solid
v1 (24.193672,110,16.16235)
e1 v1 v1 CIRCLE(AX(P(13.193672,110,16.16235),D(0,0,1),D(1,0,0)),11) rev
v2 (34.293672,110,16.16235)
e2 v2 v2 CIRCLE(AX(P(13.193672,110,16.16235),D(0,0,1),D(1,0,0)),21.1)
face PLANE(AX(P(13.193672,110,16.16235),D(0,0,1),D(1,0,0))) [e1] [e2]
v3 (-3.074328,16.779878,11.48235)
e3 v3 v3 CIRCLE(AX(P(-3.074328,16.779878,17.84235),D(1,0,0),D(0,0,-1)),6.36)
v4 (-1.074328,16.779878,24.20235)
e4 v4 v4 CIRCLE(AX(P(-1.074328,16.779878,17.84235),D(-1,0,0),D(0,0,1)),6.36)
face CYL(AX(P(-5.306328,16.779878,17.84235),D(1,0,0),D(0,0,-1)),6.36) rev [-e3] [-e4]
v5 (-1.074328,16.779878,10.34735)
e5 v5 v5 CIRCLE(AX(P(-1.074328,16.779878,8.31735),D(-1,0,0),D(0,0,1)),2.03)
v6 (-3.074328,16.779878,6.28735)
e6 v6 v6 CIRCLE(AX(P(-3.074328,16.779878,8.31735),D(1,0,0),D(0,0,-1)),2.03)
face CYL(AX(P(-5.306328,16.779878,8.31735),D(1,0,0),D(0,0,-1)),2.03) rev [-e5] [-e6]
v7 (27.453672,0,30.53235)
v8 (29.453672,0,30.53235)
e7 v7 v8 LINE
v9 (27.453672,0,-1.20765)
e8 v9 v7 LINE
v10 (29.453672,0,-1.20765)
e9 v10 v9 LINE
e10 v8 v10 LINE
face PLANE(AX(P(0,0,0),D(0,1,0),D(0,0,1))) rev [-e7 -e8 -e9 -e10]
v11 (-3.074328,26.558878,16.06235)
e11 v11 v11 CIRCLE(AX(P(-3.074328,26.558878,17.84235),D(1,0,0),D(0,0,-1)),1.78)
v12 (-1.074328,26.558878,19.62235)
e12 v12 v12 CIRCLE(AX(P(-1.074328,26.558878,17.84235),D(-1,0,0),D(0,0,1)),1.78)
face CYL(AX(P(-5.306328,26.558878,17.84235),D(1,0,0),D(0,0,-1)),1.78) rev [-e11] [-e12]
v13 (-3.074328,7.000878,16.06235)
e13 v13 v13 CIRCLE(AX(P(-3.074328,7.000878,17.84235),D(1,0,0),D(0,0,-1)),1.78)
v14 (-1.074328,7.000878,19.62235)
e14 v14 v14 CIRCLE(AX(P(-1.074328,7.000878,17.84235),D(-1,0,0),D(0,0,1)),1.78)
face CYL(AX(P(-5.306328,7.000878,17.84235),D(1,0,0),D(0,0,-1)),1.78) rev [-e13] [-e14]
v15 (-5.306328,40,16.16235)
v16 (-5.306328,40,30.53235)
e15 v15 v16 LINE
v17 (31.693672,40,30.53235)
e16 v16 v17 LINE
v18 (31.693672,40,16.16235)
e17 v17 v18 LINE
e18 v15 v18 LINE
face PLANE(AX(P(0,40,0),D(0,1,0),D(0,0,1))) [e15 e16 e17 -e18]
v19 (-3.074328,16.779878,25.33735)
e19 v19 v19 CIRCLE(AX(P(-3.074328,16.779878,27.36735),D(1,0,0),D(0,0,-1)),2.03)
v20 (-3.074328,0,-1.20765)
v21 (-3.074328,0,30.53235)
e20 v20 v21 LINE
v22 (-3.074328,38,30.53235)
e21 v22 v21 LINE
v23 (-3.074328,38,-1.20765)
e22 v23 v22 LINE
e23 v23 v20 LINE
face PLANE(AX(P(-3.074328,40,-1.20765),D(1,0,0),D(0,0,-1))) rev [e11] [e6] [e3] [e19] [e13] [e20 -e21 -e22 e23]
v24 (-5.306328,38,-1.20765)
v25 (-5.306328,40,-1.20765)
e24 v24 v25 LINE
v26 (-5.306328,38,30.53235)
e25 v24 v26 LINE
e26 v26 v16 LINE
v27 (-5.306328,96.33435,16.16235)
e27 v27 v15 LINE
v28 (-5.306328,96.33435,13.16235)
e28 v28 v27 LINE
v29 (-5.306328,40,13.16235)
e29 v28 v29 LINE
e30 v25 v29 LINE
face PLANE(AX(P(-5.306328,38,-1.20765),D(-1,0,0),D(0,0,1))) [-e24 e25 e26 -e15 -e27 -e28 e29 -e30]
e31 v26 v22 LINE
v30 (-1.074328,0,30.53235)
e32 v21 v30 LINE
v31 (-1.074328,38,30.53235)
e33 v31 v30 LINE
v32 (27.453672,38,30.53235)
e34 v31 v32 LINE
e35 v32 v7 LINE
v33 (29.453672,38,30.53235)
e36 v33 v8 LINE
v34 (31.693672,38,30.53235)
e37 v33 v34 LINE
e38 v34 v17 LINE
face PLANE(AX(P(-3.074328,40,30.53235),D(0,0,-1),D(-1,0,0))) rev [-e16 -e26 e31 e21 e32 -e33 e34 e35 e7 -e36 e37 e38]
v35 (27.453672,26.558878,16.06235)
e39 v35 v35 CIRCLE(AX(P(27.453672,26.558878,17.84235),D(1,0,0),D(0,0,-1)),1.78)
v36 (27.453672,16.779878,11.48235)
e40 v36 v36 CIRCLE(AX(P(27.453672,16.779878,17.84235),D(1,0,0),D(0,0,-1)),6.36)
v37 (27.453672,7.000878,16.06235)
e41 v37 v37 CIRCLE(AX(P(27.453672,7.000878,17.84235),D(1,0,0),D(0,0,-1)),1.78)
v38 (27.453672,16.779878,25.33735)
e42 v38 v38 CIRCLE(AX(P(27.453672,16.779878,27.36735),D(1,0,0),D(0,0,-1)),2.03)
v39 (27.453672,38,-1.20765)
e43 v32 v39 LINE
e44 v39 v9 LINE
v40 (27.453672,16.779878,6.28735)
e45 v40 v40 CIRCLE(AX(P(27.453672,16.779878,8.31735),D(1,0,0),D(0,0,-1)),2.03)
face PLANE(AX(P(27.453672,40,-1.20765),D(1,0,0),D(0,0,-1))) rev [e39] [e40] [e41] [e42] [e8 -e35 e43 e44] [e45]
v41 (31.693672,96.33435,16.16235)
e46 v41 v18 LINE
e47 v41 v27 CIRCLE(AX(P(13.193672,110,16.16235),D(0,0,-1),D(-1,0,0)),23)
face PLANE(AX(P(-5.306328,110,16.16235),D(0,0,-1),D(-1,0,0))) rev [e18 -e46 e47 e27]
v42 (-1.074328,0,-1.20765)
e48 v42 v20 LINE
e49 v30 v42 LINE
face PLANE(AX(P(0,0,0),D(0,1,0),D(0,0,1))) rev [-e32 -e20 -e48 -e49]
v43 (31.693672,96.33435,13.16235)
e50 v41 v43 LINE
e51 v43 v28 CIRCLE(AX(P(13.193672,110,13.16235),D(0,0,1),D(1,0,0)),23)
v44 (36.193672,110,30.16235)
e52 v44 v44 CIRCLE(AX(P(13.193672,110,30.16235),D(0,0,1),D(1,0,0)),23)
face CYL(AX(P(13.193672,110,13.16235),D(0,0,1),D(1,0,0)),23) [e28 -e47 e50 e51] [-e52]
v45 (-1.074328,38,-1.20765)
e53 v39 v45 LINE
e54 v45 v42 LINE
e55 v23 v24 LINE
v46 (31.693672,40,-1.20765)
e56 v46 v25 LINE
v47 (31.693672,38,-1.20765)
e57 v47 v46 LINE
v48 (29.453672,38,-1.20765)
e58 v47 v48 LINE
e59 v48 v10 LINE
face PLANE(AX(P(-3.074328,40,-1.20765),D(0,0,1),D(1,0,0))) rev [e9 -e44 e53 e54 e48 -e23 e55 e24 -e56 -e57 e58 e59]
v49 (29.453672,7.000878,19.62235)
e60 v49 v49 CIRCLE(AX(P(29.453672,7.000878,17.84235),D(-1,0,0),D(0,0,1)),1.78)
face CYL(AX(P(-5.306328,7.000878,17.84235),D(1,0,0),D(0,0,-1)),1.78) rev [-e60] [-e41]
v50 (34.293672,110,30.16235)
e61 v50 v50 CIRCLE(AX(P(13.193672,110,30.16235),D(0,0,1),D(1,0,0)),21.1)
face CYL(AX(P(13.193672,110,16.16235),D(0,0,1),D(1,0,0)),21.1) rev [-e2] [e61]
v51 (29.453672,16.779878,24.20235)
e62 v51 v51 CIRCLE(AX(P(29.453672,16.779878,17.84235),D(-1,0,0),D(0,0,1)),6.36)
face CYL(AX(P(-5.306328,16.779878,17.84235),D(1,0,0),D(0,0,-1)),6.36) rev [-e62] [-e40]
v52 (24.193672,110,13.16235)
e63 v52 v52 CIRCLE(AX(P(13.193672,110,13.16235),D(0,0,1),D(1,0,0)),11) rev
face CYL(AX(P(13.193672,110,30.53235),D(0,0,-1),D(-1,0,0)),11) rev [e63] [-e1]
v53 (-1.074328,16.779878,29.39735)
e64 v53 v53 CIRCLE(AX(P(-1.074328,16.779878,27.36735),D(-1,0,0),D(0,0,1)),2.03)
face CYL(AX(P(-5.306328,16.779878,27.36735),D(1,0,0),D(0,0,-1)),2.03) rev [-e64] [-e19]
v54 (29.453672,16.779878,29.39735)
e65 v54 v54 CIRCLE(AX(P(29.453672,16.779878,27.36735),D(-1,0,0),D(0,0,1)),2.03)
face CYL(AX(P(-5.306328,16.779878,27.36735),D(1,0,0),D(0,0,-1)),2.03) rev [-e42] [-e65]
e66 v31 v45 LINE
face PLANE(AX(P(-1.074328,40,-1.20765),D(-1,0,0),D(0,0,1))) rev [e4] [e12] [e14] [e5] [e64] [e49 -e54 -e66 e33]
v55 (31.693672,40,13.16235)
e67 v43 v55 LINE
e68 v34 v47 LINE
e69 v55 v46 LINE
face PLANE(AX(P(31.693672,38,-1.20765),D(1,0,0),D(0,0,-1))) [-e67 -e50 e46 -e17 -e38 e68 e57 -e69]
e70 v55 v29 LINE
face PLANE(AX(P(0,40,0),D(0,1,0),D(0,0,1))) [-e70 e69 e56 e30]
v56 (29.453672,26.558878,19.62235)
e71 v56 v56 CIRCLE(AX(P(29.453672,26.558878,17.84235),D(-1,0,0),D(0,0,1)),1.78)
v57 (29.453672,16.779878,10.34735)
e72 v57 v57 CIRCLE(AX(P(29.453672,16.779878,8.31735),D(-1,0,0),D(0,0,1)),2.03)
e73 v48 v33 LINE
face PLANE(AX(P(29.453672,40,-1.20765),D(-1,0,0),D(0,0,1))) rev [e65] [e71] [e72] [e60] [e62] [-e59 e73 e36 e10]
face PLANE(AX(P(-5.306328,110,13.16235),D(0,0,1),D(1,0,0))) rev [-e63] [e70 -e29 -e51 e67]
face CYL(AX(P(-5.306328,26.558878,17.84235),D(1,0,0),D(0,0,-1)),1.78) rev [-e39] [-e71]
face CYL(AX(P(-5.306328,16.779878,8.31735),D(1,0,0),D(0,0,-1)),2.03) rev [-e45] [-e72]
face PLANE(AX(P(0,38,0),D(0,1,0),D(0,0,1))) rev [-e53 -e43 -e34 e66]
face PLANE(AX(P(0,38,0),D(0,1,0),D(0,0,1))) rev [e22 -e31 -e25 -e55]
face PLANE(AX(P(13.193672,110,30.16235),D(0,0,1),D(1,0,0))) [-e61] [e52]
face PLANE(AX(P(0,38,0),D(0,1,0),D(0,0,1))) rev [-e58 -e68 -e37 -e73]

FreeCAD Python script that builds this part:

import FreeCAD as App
import Part
import Sketcher

V = App.Vector


def add_polygon(sketch, points):
    """Adds a closed chain of lines whose ends are joined by coincident constraints."""
    first, n = sketch.GeometryCount, len(points)
    for a, b in zip(points, points[1:] + points[:1]):
        sketch.addGeometry(Part.LineSegment(App.Vector(*a, 0), App.Vector(*b, 0)), False)
    for i in range(n):
        sketch.addConstraint(Sketcher.Constraint("Coincident", first + i, 2, first + (i + 1) % n, 1))

doc = App.newDocument("Part")
body = doc.addObject("PartDesign::Body", "Body")

sketch1 = body.newObject("Sketcher::SketchObject", "Sketch")
sketch1.AttachmentSupport = (doc.getObject("XZ_Plane"), [""])
sketch1.MapMode = "FlatFace"
add_polygon(sketch1, [(-3.1, -1.2), (-3.1, 30.5), (-1.1, 30.5), (-1.1, -1.2)])
sketch1.addConstraint([
    Sketcher.Constraint("Vertical", 0),
    Sketcher.Constraint("Horizontal", 1),
    Sketcher.Constraint("Vertical", 2),
    Sketcher.Constraint("Horizontal", 3),
    Sketcher.Constraint("DistanceX", 1, 1, 1, 2, 2.0),
    Sketcher.Constraint("DistanceY", 0, 1, 0, 2, 31.74),
    Sketcher.Constraint("DistanceY", -1, 1, 0, 2, 30.53235),
    Sketcher.Constraint("DistanceX", 0, 2, -1, 1, 3.074328),
])
pad1 = body.newObject("PartDesign::Pad", "Pad")
pad1.Profile = sketch1
pad1.Length = 40
pad1.Reversed = True
body2 = doc.addObject("PartDesign::Body", "Body001")

sketch2 = body2.newObject("Sketcher::SketchObject", "Sketch001")
sketch2.AttachmentSupport = (doc.getObject("XZ_Plane001"), [""])
sketch2.MapMode = "FlatFace"
add_polygon(sketch2, [(27.5, -1.2), (27.5, 30.5), (29.5, 30.5), (29.5, -1.2)])
sketch2.addConstraint([
    Sketcher.Constraint("Vertical", 0),
    Sketcher.Constraint("Horizontal", 1),
    Sketcher.Constraint("Vertical", 2),
    Sketcher.Constraint("Horizontal", 3),
    Sketcher.Constraint("DistanceX", 1, 1, 1, 2, 2.0),
    Sketcher.Constraint("DistanceY", 0, 1, 0, 2, 31.74),
    Sketcher.Constraint("DistanceY", -1, 1, 0, 2, 30.53235),
    Sketcher.Constraint("DistanceX", -1, 1, 0, 2, 27.453672),
])
pad2 = body2.newObject("PartDesign::Pad", "Pad001")
pad2.Profile = sketch2
pad2.Length = 40
pad2.Reversed = True
body.AllowCompound = True
doc.recompute()

boolean = body.newObject("PartDesign::Boolean", "Boolean")
boolean.Type = "Fuse"
boolean.addObjects([body2])

sketch3 = body.newObject("Sketcher::SketchObject", "Sketch002")
sketch3.AttachmentSupport = (doc.getObject("XZ_Plane"), [""])
sketch3.MapMode = "FlatFace"
sketch3.AttachmentOffset = App.Placement(V(0, 0, -40), App.Rotation())
add_polygon(sketch3, [(-5, -1), (-5, 31), (32, 31), (32, -1)])
sketch3.addConstraint([
    Sketcher.Constraint("Vertical", 0),
    Sketcher.Constraint("Horizontal", 1),
    Sketcher.Constraint("Vertical", 2),
    Sketcher.Constraint("Horizontal", 3),
    Sketcher.Constraint("DistanceX", 1, 1, 1, 2, 37.0),
    Sketcher.Constraint("DistanceY", 0, 1, 0, 2, 31.74),
    Sketcher.Constraint("DistanceY", -1, 1, 0, 2, 30.53235),
    Sketcher.Constraint("DistanceX", 0, 2, -1, 1, 5.306328),
])
pad3 = body.newObject("PartDesign::Pad", "Pad002")
pad3.Profile = sketch3
pad3.Length = 2

sketch4 = body.newObject("Sketcher::SketchObject", "Sketch003")
sketch4.AttachmentSupport = (doc.getObject("XZ_Plane"), [""])
sketch4.MapMode = "FlatFace"
sketch4.AttachmentOffset = App.Placement(V(0, 0, -40), App.Rotation())
add_polygon(sketch4, [(-5.3, 13.2), (-5.3, 16.2), (31.7, 16.2), (31.7, 13.2)])
sketch4.addConstraint([
    Sketcher.Constraint("Vertical", 0),
    Sketcher.Constraint("Horizontal", 1),
    Sketcher.Constraint("Vertical", 2),
    Sketcher.Constraint("Horizontal", 3),
    Sketcher.Constraint("DistanceX", 1, 1, 1, 2, 37.0),
    Sketcher.Constraint("DistanceY", 0, 1, 0, 2, 3.0),
    Sketcher.Constraint("DistanceY", -1, 1, 0, 2, 16.16235),
    Sketcher.Constraint("DistanceX", 0, 2, -1, 1, 5.306328),
])
pad4 = body.newObject("PartDesign::Pad", "Pad003")
pad4.Profile = sketch4
pad4.Length = 70
pad4.Reversed = True

sketch5 = body.newObject("Sketcher::SketchObject", "Sketch004")
sketch5.AttachmentSupport = (doc.getObject("YZ_Plane"), [""])
sketch5.MapMode = "FlatFace"
sketch5.AttachmentOffset = App.Placement(V(0, 0, 29.453672), App.Rotation())
sketch5.addGeometry([
    Part.Circle(V(16.8, 17.8, 0), V(0, 0, 1), 6.4),
    Part.Circle(V(26.6, 17.8, 0), V(0, 0, 1), 1.8),
    Part.Circle(V(7, 17.8, 0), V(0, 0, 1), 1.8),
    Part.Circle(V(16.8, 27.4, 0), V(0, 0, 1), 2),
    Part.Circle(V(16.8, 8.3, 0), V(0, 0, 1), 2),
], False)
sketch5.addConstraint([
    Sketcher.Constraint("Equal", 1, 2),
    Sketcher.Constraint("Equal", 3, 4),
    Sketcher.Constraint("Horizontal", 0, 3, 1, 3),
    Sketcher.Constraint("Horizontal", 1, 3, 2, 3),
    Sketcher.Constraint("Vertical", 0, 3, 3, 3),
    Sketcher.Constraint("Vertical", 3, 3, 4, 3),
    Sketcher.Constraint("Diameter", 0, 12.72),
    Sketcher.Constraint("Diameter", 1, 3.56),
    Sketcher.Constraint("Diameter", 3, 4.06),
    Sketcher.Constraint("DistanceY", 4, 3, 3, 3, 19.05),
    Sketcher.Constraint("DistanceX", 0, 3, 1, 3, 9.779),
    Sketcher.Constraint("DistanceX", 2, 3, 0, 3, 9.779),
    Sketcher.Constraint("DistanceY", 0, 3, 3, 3, 9.525),
    Sketcher.Constraint("DistanceX", -1, 1, 0, 3, 16.779878),
    Sketcher.Constraint("DistanceY", -1, 1, 0, 3, 17.84235),
])
pocket1 = body.newObject("PartDesign::Pocket", "Pocket")
pocket1.Profile = sketch5
pocket1.Type = "ThroughAll"
pocket1.Midplane = True

sketch6 = body.newObject("Sketcher::SketchObject", "Sketch005")
sketch6.AttachmentSupport = (doc.getObject("XY_Plane"), [""])
sketch6.MapMode = "FlatFace"
sketch6.AttachmentOffset = App.Placement(V(0, 0, 16.16235), App.Rotation())
sketch6.addGeometry(Part.Circle(V(13, 110, 0), V(0, 0, 1), 23), False)
sketch6.addConstraint([
    Sketcher.Constraint("Diameter", 0, 46.0),
    Sketcher.Constraint("DistanceY", -1, 1, 0, 3, 110.0),
    Sketcher.Constraint("DistanceX", -1, 1, 0, 3, 13.193672),
])
pad5 = body.newObject("PartDesign::Pad", "Pad004")
pad5.Profile = sketch6
pad5.Type = "TwoLengths"
pad5.Length = 14
pad5.Length2 = 3

sketch7 = body.newObject("Sketcher::SketchObject", "Sketch006")
sketch7.AttachmentSupport = (doc.getObject("XY_Plane"), [""])
sketch7.MapMode = "FlatFace"
sketch7.AttachmentOffset = App.Placement(V(0, 0, 30.16235), App.Rotation())
sketch7.addGeometry(Part.Circle(V(13, 110, 0), V(0, 0, 1), 21), False)
sketch7.addConstraint([
    Sketcher.Constraint("Diameter", 0, 42.2),
    Sketcher.Constraint("DistanceY", -1, 1, 0, 3, 110.0),
    Sketcher.Constraint("DistanceX", -1, 1, 0, 3, 13.193672),
])
pocket2 = body.newObject("PartDesign::Pocket", "Pocket001")
pocket2.Profile = sketch7
pocket2.Length = 14

sketch8 = body.newObject("Sketcher::SketchObject", "Sketch007")
sketch8.AttachmentSupport = (doc.getObject("XY_Plane"), [""])
sketch8.MapMode = "FlatFace"
sketch8.AttachmentOffset = App.Placement(V(0, 0, 16.16235), App.Rotation())
sketch8.addGeometry(Part.Circle(V(13, 110, 0), V(0, 0, 1), 11), False)
sketch8.addConstraint([
    Sketcher.Constraint("Diameter", 0, 22.0),
    Sketcher.Constraint("DistanceY", -1, 1, 0, 3, 110.0),
    Sketcher.Constraint("DistanceX", -1, 1, 0, 3, 13.193672),
])
pocket3 = body.newObject("PartDesign::Pocket", "Pocket002")
pocket3.Profile = sketch8
pocket3.Type = "ThroughAll"
pocket3.Midplane = True

doc.recompute()
